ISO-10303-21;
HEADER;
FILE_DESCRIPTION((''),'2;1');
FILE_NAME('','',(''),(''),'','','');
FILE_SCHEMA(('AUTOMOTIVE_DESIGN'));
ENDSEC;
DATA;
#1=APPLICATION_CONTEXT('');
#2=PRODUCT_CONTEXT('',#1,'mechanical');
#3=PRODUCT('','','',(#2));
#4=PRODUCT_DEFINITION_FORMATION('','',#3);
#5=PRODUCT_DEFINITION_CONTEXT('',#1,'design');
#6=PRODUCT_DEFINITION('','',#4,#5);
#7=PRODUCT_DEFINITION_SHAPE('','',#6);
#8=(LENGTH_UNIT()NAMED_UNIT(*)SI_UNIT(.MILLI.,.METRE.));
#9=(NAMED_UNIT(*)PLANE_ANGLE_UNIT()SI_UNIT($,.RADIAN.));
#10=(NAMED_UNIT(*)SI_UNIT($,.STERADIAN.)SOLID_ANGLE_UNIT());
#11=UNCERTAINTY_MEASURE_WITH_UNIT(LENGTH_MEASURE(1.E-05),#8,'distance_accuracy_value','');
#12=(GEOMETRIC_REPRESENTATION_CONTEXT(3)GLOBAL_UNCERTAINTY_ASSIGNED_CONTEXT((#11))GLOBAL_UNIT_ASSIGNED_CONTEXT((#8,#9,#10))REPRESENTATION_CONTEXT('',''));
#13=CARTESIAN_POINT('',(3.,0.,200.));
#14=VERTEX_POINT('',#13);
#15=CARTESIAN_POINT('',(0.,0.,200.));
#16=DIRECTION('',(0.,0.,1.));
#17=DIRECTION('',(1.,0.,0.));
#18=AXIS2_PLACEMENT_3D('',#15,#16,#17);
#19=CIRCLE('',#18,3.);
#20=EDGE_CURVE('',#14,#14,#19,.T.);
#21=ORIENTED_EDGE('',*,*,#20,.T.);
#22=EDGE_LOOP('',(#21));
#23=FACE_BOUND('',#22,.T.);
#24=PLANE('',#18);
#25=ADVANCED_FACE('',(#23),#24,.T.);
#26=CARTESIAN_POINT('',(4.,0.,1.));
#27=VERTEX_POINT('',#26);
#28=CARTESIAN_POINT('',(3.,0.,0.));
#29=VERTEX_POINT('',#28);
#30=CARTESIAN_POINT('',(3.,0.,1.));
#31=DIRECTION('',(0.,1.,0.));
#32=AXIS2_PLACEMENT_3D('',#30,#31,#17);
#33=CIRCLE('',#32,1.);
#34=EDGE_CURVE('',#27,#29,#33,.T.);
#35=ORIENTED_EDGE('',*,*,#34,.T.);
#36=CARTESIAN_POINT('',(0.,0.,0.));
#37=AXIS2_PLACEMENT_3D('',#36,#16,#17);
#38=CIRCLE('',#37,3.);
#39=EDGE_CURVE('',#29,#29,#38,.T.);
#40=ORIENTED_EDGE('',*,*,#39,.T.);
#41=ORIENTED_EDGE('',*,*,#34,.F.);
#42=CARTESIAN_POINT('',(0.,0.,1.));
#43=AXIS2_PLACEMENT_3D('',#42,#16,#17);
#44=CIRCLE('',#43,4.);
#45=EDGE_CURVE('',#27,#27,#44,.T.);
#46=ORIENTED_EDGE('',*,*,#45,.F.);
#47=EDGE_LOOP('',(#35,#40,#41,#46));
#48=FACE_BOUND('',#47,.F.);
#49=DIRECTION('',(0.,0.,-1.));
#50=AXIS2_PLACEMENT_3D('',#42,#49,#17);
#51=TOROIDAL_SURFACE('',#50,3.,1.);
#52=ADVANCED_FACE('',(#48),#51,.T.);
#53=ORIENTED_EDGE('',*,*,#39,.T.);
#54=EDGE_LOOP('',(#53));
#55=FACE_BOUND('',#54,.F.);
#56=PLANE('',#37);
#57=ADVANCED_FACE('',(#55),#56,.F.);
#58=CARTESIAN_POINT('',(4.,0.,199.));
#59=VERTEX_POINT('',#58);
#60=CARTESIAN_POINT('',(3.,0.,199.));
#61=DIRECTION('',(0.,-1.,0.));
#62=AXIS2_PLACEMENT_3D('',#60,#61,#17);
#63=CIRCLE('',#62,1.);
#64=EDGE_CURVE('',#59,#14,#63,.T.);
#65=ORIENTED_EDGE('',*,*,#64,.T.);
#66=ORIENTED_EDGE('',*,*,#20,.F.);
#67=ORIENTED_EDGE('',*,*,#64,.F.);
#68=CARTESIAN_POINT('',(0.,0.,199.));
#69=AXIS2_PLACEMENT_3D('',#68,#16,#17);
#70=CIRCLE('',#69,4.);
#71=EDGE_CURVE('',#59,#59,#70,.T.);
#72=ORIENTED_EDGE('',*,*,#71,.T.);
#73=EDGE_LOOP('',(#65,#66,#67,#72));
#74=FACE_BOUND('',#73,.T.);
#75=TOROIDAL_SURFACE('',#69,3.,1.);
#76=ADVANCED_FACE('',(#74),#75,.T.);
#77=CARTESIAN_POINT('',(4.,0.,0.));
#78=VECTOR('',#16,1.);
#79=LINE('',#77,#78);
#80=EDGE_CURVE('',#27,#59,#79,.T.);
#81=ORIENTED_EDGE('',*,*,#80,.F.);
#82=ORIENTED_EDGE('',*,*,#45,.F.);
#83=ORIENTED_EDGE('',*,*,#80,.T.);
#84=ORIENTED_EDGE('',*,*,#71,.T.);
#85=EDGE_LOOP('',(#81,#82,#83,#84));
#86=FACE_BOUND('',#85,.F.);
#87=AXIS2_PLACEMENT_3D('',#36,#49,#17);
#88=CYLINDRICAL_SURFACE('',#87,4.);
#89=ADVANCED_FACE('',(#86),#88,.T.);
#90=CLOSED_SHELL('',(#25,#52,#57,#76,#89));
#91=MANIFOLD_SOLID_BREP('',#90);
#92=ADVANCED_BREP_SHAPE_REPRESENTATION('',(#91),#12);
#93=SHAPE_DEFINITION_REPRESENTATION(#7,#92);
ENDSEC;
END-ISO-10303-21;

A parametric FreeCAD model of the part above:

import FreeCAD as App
import Part
import Sketcher

V = App.Vector


def edges_at(feature, points):
    """Names of the edges that pass closest to the given points."""
    edges = feature.Shape.Edges
    near = lambda p: min(range(len(edges)), key=lambda i: edges[i].distToShape(Part.Vertex(*p))[0])
    return sorted({f"Edge{near(p) + 1}" for p in points})

doc = App.newDocument("Part")
body = doc.addObject("PartDesign::Body", "Body")

sketch1 = doc.addObject("Sketcher::SketchObject", "Sketch")
body.addObject(sketch1)
sketch1.AttachmentSupport = (doc.XY_Plane, [""])
sketch1.MapMode = "FlatFace"
sketch1.addGeometry(Part.Circle(V(0, 0, 0), V(0, 0, 1), 4), False)
sketch1.addConstraint(Sketcher.Constraint("Coincident", 0, 3, -1, 1))
sketch1.addConstraint(Sketcher.Constraint("Diameter", 0, 8.0))
pad1 = doc.addObject("PartDesign::Pad", "Pad")
body.addObject(pad1)
pad1.Profile = sketch1
pad1.Length = 200
doc.recompute()

fillet = doc.addObject("PartDesign::Fillet", "Fillet")
body.addObject(fillet)
fillet.Base = (pad1, edges_at(pad1, [(-4, 0, 0), (-4, 0, 200)]))
fillet.Radius = 1

doc.recompute()
